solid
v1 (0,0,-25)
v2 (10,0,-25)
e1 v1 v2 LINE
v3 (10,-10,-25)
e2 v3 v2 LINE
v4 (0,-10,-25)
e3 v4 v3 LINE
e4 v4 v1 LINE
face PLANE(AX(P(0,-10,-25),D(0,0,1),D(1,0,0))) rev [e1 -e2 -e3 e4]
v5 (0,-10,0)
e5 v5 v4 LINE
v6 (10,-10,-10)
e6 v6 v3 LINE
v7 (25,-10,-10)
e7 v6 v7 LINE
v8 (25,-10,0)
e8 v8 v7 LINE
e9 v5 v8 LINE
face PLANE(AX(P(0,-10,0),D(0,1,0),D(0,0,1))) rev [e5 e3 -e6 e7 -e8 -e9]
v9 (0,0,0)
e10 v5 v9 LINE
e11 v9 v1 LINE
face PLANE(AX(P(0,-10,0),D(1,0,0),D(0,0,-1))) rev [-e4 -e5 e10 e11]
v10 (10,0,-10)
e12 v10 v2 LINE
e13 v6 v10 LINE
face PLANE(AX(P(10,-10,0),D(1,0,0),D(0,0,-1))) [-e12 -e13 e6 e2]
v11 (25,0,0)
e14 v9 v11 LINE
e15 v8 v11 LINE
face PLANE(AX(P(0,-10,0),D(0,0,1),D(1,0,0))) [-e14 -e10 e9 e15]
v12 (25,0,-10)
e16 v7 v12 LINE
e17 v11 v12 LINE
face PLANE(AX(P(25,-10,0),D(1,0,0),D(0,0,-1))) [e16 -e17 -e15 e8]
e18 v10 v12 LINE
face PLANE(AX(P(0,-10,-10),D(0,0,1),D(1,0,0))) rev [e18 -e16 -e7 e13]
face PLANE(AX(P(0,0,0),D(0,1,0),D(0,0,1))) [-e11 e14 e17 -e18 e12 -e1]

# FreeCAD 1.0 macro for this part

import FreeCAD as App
import Part
import Sketcher
from FreeCAD import Vector
Q = App.Units.Quantity


def add_polygon(sketch, points):
    """Adds a closed chain of lines whose ends are joined by coincident constraints."""
    first, n = sketch.GeometryCount, len(points)
    for a, b in zip(points, points[1:] + points[:1]):
        sketch.addGeometry(Part.LineSegment(App.Vector(*a, 0), App.Vector(*b, 0)), False)
    for i in range(n):
        sketch.addConstraint(Sketcher.Constraint("Coincident", first + i, 2, first + (i + 1) % n, 1))

doc = App.newDocument("Part")
body = doc.addObject("PartDesign::Body", "Body")

# Sketch on XZ plane
sketch1 = body.newObject("Sketcher::SketchObject", "Sketch")
sketch1.AttachmentSupport = (doc.getObject("XZ_Plane"), [""])
sketch1.MapMode = "FlatFace"
add_polygon(sketch1, [(25, 0), (25, -10), (10, -10), (10, -25), (0, -25), (0, 0)])  # lines 0-5
sketch1.addConstraint([
    Sketcher.Constraint("Vertical", 0),
    Sketcher.Constraint("Horizontal", 1),
    Sketcher.Constraint("Vertical", 2),
    Sketcher.Constraint("Horizontal", 3),
    Sketcher.Constraint("Vertical", 4),
    Sketcher.Constraint("Horizontal", 5),
    Sketcher.Constraint("Coincident", 4, 2, -1, 1),
    Sketcher.Constraint("Equal", 3, 0),
    Sketcher.Constraint("Equal", 1, 2),
    Sketcher.Constraint("DistanceX", 1, 2, 1, 1, Q("15 mm")),
    Sketcher.Constraint("DistanceX", 3, 2, 3, 1, Q("10 mm")),
])
pad1 = body.newObject("PartDesign::Pad", "Pad")
pad1.Profile = sketch1
pad1.Length = 10

doc.recompute()
